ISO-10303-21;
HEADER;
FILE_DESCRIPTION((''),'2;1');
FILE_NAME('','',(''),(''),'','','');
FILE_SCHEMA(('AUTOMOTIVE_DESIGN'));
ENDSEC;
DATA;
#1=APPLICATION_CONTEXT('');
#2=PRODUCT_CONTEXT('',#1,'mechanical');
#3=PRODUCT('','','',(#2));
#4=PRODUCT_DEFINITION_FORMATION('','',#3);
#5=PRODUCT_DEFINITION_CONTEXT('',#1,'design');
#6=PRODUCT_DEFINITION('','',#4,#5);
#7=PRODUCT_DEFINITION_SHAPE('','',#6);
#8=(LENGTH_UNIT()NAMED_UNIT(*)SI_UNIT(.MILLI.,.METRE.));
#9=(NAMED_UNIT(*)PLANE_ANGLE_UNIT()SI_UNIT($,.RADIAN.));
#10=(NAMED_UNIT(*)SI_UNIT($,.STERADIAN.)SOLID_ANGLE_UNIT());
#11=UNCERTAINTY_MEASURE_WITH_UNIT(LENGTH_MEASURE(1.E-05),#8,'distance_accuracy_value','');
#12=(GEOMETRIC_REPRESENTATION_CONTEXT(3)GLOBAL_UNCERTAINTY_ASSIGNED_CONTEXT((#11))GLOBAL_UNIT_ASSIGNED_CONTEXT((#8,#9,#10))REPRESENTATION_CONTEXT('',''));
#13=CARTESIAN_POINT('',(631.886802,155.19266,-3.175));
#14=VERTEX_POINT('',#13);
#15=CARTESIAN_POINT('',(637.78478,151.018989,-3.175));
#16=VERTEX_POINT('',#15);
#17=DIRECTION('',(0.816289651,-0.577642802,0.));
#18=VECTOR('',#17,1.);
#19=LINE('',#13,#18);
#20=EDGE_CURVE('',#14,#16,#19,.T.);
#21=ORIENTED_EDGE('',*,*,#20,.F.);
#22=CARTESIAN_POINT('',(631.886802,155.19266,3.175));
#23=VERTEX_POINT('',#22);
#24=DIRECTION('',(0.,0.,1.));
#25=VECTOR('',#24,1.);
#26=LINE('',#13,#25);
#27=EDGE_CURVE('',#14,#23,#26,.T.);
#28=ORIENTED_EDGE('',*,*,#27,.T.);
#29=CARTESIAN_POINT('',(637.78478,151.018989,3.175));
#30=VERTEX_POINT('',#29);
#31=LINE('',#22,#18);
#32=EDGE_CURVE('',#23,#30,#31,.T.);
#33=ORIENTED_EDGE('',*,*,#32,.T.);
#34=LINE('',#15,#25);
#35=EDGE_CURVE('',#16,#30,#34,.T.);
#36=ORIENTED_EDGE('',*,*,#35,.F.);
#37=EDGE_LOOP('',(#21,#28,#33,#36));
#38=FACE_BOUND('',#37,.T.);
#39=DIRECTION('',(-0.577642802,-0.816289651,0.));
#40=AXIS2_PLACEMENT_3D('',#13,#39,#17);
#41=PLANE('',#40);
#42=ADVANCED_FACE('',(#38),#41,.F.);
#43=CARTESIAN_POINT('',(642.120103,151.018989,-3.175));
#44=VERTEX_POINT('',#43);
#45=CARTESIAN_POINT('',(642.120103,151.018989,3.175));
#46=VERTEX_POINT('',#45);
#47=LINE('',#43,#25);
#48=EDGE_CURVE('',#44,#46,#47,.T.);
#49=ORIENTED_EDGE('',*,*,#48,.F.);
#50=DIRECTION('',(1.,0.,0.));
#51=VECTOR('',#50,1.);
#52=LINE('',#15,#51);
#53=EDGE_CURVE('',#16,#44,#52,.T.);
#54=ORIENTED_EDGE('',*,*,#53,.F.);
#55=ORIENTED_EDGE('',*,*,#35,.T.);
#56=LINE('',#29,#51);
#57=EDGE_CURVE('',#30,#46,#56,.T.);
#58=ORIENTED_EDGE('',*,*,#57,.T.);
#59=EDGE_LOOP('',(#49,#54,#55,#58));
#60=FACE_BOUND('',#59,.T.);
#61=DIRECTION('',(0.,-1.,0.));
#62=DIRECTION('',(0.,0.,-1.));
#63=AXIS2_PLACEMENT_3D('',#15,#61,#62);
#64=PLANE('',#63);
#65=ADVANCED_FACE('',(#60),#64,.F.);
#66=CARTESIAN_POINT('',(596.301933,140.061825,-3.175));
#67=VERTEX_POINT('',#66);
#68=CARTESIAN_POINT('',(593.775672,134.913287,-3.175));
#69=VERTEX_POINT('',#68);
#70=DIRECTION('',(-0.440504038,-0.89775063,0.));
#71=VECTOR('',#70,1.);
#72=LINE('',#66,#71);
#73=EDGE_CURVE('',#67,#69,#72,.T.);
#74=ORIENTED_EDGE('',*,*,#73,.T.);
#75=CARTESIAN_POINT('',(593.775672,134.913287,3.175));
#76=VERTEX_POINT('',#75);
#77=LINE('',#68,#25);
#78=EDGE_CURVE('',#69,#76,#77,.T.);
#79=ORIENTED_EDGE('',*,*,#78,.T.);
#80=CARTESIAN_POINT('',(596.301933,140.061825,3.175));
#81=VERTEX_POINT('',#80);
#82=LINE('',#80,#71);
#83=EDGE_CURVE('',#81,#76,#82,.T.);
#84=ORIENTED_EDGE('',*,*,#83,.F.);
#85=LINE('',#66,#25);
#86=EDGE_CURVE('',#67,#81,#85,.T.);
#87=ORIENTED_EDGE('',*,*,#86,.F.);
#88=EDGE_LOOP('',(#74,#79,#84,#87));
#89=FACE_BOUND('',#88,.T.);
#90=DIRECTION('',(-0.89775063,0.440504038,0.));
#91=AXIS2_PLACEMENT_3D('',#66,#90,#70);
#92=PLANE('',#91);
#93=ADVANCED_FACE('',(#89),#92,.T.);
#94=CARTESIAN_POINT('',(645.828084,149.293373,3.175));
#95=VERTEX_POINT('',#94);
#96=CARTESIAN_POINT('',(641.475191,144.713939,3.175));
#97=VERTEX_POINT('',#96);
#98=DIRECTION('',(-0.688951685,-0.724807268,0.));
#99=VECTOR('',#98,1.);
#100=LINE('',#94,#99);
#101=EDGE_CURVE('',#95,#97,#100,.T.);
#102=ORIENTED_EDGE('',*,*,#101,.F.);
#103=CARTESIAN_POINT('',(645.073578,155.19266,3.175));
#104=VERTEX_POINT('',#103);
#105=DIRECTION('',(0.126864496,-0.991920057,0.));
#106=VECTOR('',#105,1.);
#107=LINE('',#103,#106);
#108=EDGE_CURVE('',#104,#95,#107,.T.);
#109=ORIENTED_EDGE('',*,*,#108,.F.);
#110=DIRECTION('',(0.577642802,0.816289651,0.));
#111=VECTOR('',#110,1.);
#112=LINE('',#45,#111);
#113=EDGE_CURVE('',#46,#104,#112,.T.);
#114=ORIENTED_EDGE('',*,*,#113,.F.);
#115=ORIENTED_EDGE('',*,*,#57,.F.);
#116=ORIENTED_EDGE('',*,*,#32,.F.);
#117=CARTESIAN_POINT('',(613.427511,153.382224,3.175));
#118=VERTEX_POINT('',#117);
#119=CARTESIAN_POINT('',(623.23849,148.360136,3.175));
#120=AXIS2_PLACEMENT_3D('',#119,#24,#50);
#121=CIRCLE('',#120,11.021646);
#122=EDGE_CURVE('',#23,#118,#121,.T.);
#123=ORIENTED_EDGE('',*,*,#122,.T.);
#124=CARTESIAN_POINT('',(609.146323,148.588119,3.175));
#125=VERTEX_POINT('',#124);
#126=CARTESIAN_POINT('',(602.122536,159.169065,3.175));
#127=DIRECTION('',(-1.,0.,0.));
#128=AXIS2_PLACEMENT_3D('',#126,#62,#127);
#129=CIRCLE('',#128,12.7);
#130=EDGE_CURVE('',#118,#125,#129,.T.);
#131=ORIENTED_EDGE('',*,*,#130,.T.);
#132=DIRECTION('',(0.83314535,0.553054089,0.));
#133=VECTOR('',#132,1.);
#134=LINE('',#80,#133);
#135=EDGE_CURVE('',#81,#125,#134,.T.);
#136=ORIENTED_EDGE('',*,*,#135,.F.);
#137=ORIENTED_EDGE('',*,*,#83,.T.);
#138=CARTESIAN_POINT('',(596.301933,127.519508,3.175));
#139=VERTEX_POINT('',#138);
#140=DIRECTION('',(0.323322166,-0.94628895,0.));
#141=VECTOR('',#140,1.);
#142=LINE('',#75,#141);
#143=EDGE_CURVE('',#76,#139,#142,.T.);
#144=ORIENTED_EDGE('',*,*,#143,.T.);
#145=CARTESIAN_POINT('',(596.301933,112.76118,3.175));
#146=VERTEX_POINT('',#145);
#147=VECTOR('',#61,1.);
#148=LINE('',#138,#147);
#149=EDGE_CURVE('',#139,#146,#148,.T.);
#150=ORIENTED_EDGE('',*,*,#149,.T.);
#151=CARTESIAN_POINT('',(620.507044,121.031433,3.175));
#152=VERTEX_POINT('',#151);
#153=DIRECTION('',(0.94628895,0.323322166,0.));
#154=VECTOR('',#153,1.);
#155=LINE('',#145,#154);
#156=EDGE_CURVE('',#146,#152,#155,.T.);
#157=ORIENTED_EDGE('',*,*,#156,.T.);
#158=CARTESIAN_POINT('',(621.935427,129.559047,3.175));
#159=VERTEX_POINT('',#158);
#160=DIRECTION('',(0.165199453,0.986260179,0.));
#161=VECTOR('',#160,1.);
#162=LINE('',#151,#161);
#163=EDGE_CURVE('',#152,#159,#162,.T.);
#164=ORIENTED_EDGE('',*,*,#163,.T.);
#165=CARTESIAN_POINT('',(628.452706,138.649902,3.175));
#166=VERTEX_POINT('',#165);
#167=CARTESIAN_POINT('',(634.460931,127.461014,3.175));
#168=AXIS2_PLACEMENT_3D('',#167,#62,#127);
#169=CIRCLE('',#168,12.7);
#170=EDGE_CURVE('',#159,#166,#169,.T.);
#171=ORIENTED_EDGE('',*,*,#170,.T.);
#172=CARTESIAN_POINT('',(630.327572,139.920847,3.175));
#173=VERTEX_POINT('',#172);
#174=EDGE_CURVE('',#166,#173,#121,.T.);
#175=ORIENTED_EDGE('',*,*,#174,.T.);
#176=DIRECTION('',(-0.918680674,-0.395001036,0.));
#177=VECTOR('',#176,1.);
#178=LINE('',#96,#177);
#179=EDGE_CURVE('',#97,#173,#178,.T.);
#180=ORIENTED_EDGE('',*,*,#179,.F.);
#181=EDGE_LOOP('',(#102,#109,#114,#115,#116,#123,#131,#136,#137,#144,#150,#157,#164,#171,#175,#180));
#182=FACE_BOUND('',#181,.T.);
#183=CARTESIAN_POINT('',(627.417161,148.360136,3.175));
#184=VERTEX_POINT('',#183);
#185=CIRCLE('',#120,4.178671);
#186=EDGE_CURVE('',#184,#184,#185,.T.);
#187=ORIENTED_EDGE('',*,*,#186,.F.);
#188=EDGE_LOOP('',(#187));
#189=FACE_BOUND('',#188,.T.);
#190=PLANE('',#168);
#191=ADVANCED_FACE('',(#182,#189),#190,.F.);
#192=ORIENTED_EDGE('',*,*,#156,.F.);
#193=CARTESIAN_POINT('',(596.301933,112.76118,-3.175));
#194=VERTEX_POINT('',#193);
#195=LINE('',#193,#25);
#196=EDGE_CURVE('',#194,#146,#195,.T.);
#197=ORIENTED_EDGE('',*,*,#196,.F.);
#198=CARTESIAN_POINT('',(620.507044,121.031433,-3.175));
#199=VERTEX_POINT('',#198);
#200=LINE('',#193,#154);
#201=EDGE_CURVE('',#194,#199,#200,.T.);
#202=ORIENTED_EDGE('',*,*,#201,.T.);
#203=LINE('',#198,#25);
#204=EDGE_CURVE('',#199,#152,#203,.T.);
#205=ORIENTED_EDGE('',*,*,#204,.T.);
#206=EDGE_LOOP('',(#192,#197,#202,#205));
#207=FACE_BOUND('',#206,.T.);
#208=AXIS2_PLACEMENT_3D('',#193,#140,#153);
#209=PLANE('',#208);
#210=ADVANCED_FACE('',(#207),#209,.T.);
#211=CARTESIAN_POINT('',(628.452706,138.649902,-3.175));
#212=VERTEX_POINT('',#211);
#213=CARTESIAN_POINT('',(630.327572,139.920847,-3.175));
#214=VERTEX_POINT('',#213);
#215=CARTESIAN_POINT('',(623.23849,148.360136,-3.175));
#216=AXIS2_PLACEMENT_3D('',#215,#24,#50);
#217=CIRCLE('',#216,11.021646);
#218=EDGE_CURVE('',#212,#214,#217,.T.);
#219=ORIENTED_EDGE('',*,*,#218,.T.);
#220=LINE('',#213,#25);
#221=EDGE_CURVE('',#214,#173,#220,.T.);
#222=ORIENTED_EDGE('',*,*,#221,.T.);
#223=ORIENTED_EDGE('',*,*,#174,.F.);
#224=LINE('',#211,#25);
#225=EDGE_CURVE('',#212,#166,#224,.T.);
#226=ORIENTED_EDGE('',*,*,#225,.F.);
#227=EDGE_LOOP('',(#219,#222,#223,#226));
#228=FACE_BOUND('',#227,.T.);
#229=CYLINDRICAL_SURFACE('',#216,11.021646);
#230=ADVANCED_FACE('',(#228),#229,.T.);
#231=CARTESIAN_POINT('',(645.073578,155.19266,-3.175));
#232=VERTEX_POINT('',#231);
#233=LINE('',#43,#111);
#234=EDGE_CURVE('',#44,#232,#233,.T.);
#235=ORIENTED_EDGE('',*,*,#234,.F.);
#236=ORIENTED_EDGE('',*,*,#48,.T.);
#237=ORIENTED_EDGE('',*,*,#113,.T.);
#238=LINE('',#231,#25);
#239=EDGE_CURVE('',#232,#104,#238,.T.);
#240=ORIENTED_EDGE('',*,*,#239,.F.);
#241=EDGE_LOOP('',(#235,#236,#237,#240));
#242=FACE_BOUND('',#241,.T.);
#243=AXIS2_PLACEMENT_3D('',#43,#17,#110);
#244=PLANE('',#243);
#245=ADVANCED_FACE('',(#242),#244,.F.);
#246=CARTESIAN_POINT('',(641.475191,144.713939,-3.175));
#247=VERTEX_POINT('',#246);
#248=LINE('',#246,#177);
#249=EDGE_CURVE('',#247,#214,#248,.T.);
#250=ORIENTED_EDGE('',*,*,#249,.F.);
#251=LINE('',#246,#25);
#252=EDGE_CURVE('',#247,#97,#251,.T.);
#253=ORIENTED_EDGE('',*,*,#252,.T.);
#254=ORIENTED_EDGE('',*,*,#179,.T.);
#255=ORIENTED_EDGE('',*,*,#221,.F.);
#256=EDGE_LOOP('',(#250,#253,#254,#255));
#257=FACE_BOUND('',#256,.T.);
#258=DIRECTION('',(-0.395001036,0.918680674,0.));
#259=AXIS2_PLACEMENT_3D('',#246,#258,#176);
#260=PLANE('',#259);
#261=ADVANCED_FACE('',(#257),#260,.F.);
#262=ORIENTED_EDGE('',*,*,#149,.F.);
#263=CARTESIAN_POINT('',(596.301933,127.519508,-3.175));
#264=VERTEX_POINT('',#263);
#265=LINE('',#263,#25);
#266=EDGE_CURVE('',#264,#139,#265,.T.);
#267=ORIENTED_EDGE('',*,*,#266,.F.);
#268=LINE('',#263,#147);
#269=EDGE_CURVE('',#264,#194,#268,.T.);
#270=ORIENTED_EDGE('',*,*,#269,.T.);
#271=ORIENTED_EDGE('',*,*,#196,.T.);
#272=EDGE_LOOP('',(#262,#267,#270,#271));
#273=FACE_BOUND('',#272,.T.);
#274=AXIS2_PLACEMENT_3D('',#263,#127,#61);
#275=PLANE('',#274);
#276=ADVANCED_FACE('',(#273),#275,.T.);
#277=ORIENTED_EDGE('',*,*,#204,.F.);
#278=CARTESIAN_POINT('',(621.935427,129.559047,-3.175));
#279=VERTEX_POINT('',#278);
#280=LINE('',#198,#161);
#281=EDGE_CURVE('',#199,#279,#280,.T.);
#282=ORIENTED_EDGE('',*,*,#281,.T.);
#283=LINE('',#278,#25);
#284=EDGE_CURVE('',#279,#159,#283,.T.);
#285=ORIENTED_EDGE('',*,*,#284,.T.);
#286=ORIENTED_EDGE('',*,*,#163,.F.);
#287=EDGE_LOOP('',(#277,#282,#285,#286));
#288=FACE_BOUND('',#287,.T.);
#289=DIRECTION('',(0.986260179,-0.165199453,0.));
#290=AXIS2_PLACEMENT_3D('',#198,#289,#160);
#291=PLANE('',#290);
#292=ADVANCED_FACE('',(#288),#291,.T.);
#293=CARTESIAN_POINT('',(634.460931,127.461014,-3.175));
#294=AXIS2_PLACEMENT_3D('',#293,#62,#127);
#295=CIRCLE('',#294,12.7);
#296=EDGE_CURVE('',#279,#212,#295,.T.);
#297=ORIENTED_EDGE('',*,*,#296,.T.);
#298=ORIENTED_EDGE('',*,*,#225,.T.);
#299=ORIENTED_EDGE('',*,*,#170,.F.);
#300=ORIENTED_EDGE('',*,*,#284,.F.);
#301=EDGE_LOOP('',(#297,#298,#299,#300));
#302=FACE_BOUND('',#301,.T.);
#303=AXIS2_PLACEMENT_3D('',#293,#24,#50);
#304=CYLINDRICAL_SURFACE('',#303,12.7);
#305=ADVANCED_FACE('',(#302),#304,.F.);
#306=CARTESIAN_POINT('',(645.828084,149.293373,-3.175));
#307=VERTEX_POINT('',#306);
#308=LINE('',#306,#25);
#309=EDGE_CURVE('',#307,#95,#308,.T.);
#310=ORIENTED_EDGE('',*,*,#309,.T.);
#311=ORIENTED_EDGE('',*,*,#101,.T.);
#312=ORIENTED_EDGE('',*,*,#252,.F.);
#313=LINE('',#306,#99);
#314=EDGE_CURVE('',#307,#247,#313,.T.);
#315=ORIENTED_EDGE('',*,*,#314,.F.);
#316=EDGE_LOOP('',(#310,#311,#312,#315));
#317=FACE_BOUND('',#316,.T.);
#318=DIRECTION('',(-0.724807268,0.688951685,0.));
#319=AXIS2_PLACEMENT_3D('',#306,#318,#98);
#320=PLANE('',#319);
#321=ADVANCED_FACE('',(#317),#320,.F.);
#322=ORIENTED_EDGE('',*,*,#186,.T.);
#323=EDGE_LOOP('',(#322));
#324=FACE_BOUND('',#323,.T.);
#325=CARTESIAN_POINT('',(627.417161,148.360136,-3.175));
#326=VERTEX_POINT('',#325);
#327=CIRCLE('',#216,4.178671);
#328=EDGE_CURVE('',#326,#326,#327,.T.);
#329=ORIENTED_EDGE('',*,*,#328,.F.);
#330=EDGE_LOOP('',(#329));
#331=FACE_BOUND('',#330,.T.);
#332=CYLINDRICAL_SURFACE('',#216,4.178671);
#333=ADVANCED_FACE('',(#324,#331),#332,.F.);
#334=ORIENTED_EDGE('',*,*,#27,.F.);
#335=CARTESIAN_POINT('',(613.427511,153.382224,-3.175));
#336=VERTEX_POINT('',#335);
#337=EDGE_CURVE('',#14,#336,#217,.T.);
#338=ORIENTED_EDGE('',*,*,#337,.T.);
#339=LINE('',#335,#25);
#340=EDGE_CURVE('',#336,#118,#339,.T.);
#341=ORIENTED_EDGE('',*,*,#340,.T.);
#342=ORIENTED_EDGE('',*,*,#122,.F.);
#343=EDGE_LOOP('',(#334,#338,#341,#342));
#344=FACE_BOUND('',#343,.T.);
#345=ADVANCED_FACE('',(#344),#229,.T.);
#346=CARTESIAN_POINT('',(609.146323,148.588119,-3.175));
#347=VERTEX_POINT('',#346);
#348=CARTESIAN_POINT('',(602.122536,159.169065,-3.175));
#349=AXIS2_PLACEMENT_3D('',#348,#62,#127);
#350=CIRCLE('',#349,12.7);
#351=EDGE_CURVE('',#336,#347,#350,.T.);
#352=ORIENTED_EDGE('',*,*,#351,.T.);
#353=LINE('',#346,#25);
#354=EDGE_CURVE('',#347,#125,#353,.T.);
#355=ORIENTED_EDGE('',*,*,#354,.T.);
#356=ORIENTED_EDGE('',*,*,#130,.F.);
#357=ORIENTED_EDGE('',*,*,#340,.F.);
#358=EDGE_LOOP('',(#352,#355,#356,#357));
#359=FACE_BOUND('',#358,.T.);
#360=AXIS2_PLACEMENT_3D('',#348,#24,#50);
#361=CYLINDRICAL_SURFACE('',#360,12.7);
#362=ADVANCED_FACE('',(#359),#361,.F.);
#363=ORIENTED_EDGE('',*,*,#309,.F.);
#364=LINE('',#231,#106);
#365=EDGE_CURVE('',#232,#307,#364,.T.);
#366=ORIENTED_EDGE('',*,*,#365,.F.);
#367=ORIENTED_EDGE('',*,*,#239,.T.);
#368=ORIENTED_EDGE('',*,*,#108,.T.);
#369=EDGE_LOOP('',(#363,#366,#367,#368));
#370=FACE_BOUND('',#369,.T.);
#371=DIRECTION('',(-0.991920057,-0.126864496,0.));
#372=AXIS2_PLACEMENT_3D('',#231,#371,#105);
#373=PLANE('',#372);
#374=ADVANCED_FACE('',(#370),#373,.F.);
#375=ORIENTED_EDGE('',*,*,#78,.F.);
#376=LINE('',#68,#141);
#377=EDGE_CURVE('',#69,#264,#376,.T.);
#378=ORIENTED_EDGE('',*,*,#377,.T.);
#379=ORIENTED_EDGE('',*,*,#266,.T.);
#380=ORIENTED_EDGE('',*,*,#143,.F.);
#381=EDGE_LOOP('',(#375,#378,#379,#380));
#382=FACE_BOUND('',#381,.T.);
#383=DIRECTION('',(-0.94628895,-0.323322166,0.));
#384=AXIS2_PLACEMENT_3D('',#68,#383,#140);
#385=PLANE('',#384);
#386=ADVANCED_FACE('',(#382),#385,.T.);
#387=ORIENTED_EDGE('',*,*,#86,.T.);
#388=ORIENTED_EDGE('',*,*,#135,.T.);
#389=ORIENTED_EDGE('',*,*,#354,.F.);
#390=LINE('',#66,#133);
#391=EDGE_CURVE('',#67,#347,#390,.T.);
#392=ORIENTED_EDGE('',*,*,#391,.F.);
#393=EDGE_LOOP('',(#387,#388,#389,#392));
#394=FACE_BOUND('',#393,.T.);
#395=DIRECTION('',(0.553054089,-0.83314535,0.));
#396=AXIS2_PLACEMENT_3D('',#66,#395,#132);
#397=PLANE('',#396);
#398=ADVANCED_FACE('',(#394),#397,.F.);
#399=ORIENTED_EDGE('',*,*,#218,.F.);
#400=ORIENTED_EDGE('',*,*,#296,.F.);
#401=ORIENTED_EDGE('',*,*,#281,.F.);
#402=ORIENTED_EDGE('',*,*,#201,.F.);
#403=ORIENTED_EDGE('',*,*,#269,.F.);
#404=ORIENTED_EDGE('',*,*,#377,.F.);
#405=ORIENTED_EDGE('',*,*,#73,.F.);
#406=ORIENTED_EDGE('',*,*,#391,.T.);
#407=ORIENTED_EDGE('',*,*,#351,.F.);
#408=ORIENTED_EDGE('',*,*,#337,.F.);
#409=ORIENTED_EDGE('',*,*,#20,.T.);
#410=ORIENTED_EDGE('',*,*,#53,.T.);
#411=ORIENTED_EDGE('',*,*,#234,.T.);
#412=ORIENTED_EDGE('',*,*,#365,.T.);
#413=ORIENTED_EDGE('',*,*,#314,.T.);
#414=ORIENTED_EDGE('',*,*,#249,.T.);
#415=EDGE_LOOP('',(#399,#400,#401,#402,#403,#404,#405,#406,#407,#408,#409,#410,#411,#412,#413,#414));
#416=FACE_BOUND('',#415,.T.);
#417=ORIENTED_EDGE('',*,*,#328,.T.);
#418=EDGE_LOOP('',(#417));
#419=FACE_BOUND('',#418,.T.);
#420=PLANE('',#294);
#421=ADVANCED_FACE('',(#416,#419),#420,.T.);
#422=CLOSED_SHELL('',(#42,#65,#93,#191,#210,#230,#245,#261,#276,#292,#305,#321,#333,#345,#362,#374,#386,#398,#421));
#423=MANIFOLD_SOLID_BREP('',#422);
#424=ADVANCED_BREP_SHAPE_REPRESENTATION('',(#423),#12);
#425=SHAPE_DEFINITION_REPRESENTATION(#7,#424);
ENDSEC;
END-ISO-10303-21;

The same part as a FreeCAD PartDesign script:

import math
import FreeCAD as App
import Part
import Sketcher

V = App.Vector
Q = App.Units.Quantity

doc = App.newDocument("Part")
params = doc.addObject("Spreadsheet::Sheet", "Params")
for row, (alias, value) in enumerate([
    ("sketch1_radius", "0.5 in"),
    ("pad1_length", "0.125 in"),
    ("pad1_length2", "0.125 in"),
], start=1):
    params.set(f"A{row}", alias)
    params.set(f"B{row}", "=" + value)
    params.setAlias(f"B{row}", alias)

body = doc.addObject("PartDesign::Body", "Body")

# Sketch on XY plane
sketch1 = body.newObject("Sketcher::SketchObject", "Sketch")
sketch1.AttachmentSupport = (doc.getObject("XY_Plane"), [""])
sketch1.MapMode = "FlatFace"
sketch1.addGeometry([
    Part.LineSegment(V(596.3, 140.1, 0), V(593.8, 134.9, 0)),  # 0
    Part.LineSegment(V(593.8, 134.9, 0), V(596.3, 127.5, 0)),  # 1
    Part.LineSegment(V(596.3, 127.5, 0), V(596.3, 112.8, 0)),  # 2
    Part.LineSegment(V(596.3, 112.8, 0), V(620.5, 121, 0)),  # 3
    Part.LineSegment(V(620.5, 121, 0), V(621.9, 129.6, 0)),  # 4
    Part.ArcOfCircle(Part.Circle(V(634.5, 127.5, 0), V(0, 0, 1), 12.7), math.radians(118), math.radians(170)),  # 5
    Part.ArcOfCircle(Part.Circle(V(623.2, 148.4, 0), V(0, 0, 1), 11), math.radians(-61.77), math.radians(-49.97)),  # 6
    Part.LineSegment(V(630.3, 139.9, 0), V(641.5, 144.7, 0)),  # 7
    Part.LineSegment(V(641.5, 144.7, 0), V(645.8, 149.3, 0)),  # 8
    Part.LineSegment(V(645.8, 149.3, 0), V(645.1, 155.2, 0)),  # 9
    Part.LineSegment(V(645.1, 155.2, 0), V(642.1, 151, 0)),  # 10
    Part.LineSegment(V(642.1, 151, 0), V(637.8, 151, 0)),  # 11
    Part.LineSegment(V(637.8, 151, 0), V(631.9, 155.2, 0)),  # 12
    Part.ArcOfCircle(Part.Circle(V(623.2, 148.4, 0), V(0, 0, 1), 11), math.radians(38), math.radians(153)),  # 13
    Part.ArcOfCircle(Part.Circle(V(602.1, 159.2, 0), V(0, 0, 1), 12.7), math.radians(-56), math.radians(-27)),  # 14
    Part.LineSegment(V(609.1, 148.6, 0), V(596.3, 140.1, 0)),  # 15
    Part.Circle(V(623.2, 148.4, 0), V(0, 0, 1), 4.2),  # 16
], False)
sketch1.addConstraint([
    Sketcher.Constraint("Coincident", 0, 2, 1, 1),
    Sketcher.Constraint("Coincident", 1, 2, 2, 1),
    Sketcher.Constraint("Coincident", 2, 2, 3, 1),
    Sketcher.Constraint("Coincident", 3, 2, 4, 1),
    Sketcher.Constraint("Tangent", 4, 2, 5, 2),
    Sketcher.Constraint("Tangent", 5, 1, 6, 1),
    Sketcher.Constraint("Coincident", 6, 2, 7, 1),
    Sketcher.Constraint("Coincident", 7, 2, 8, 1),
    Sketcher.Constraint("Coincident", 8, 2, 9, 1),
    Sketcher.Constraint("Coincident", 9, 2, 10, 1),
    Sketcher.Constraint("Coincident", 10, 2, 11, 1),
    Sketcher.Constraint("Coincident", 11, 2, 12, 1),
    Sketcher.Constraint("Coincident", 12, 2, 13, 1),
    Sketcher.Constraint("Tangent", 13, 2, 14, 2),
    Sketcher.Constraint("Tangent", 14, 1, 15, 1),
    Sketcher.Constraint("Coincident", 15, 2, 0, 1),
    Sketcher.Constraint("Vertical", 2),
    Sketcher.Constraint("Horizontal", 11),
    Sketcher.Constraint("Coincident", 13, 3, 6, 3),
    Sketcher.Constraint("Coincident", 16, 3, 6, 3),
    Sketcher.Constraint("Equal", 6, 13),
    Sketcher.Constraint("Equal", 5, 14),
    Sketcher.Constraint("Perpendicular", 1, 3),
    Sketcher.Constraint("Perpendicular", 10, 12),
    Sketcher.Constraint("Horizontal", 9, 2, 12, 2),
    Sketcher.Constraint("Vertical", 2, 2, 15, 2),
    Sketcher.Constraint("Radius", 5, Q("0.5 in")),
    Sketcher.Constraint("Diameter", 16, 8.357342),
    Sketcher.Constraint("Radius", 6, 11.021646),
    Sketcher.Constraint("DistanceY", 5, 3, 6, 3, Q("0.8228001 in")),
    Sketcher.Constraint("DistanceX", 2, 2, 5, 3, 38.158998),
    Sketcher.Constraint("DistanceX", 13, 3, 7, 2, 18.2367),
    Sketcher.Constraint("DistanceX", 12, 2, 10, 2, 10.233301),
    Sketcher.Constraint("DistanceY", 15, 2, 13, 2, 13.320399),
    Sketcher.Constraint("Distance", 0, 5.734932),
    Sketcher.Constraint("Distance", 8, 6.31814),
    Sketcher.Constraint("Distance", 9, 5.947341),
    Sketcher.Constraint("Distance", 12, 7.225349),
    Sketcher.Constraint("DistanceX", 11, 2, 11, 1, 4.335323),
    Sketcher.Constraint("DistanceY", 2, 2, 2, 1, 14.758328),
    Sketcher.Constraint("DistanceX", -1, 1, 5, 3, 634.460931),
    Sketcher.Constraint("DistanceY", -1, 1, 1, 2, 127.519508),
    Sketcher.Constraint("DistanceY", -1, 1, 7, 2, 144.713939),
    Sketcher.Constraint("DistanceY", -1, 1, 9, 2, 155.19266),
    Sketcher.Constraint("DistanceX", -1, 1, 11, 2, 637.78478),
    Sketcher.Constraint("DistanceX", -1, 1, 13, 2, 613.427511),
    Sketcher.Constraint("DistanceY", 0, 2, 14, 3, 24.255779),
    Sketcher.Constraint("DistanceY", 3, 2, 5, 3, 6.429581),
    Sketcher.Constraint("DistanceX", 13, 3, 6, 2, 7.089082),
])
sketch1.setExpression("Constraints[26]", "Params.sketch1_radius")
pad1 = body.newObject("PartDesign::Pad", "Pad")
pad1.Profile = sketch1
pad1.Type = "TwoLengths"
pad1.setExpression("Length", "Params.pad1_length")
pad1.setExpression("Length2", "Params.pad1_length2")

doc.recompute()
